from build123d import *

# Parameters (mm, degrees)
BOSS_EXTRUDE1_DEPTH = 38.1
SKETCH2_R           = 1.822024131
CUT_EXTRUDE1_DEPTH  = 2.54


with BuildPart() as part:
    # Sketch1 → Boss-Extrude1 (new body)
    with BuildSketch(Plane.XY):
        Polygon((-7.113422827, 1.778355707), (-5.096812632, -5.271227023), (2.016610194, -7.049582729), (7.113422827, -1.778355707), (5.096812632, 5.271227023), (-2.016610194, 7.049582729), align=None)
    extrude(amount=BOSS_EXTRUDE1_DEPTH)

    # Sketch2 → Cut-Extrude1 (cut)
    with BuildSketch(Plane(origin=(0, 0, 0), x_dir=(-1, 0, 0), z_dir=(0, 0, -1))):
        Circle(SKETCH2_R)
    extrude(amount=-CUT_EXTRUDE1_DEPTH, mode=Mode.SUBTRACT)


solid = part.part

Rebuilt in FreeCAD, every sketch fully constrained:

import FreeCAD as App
import Part
import Sketcher
Q = App.Units.Quantity


def add_polygon(sketch, points):
    """Adds a closed chain of lines whose ends are joined by coincident constraints."""
    first, n = sketch.GeometryCount, len(points)
    for a, b in zip(points, points[1:] + points[:1]):
        sketch.addGeometry(Part.LineSegment(App.Vector(*a, 0), App.Vector(*b, 0)), False)
    for i in range(n):
        sketch.addConstraint(Sketcher.Constraint("Coincident", first + i, 2, first + (i + 1) % n, 1))

doc = App.newDocument("Part")
body = doc.addObject("PartDesign::Body", "Body")

sketch1 = doc.addObject("Sketcher::SketchObject", "Sketch")
body.addObject(sketch1)
sketch1.AttachmentSupport = (doc.XY_Plane, [""])
sketch1.MapMode = "FlatFace"
add_polygon(sketch1, [(-7, 2), (-5, -5), (2, -7), (7, -2), (5, 5), (-2, 7)])
sketch1.addConstraint(Sketcher.Constraint("Symmetric", 0, 2, 3, 2, -1, 1))
sketch1.addConstraint(Sketcher.Constraint("Symmetric", 1, 2, 4, 2, -1, 1))
sketch1.addConstraint(Sketcher.Constraint("Symmetric", 2, 2, 5, 2, -1, 1))
sketch1.addConstraint(Sketcher.Constraint("Equal", 0, 1))
sketch1.addConstraint(Sketcher.Constraint("Equal", 1, 2))
sketch1.addConstraint(Sketcher.Constraint("Distance", 0, Q("7.332348 mm")))
sketch1.addConstraint(Sketcher.Constraint("DistanceX", -1, 1, 1, 2, Q("2.01661 mm")))
sketch1.addConstraint(Sketcher.Constraint("DistanceY", 0, 2, 2, 2, Q("3.492871 mm")))
sketch1.addConstraint(Sketcher.Constraint("DistanceX", 3, 2, 2, 2, Q("2.01661 mm")))
pad1 = doc.addObject("PartDesign::Pad", "Pad")
body.addObject(pad1)
pad1.Profile = sketch1
pad1.Length = Q("1.5 in")

sketch2 = doc.addObject("Sketcher::SketchObject", "Sketch001")
body.addObject(sketch2)
sketch2.AttachmentSupport = (doc.XY_Plane, [""])
sketch2.MapMode = "FlatFace"
sketch2.addGeometry(Part.Circle(App.Vector(0, 0, 0), App.Vector(0, 0, 1), 1.8), False)
sketch2.addConstraint(Sketcher.Constraint("Coincident", 0, 3, -1, 1))
sketch2.addConstraint(Sketcher.Constraint("Diameter", 0, Q("3.644048 mm")))
pocket1 = doc.addObject("PartDesign::Pocket", "Pocket")
body.addObject(pocket1)
pocket1.Profile = sketch2
pocket1.Length = Q("0.1 in")
pocket1.Reversed = True

doc.recompute()
